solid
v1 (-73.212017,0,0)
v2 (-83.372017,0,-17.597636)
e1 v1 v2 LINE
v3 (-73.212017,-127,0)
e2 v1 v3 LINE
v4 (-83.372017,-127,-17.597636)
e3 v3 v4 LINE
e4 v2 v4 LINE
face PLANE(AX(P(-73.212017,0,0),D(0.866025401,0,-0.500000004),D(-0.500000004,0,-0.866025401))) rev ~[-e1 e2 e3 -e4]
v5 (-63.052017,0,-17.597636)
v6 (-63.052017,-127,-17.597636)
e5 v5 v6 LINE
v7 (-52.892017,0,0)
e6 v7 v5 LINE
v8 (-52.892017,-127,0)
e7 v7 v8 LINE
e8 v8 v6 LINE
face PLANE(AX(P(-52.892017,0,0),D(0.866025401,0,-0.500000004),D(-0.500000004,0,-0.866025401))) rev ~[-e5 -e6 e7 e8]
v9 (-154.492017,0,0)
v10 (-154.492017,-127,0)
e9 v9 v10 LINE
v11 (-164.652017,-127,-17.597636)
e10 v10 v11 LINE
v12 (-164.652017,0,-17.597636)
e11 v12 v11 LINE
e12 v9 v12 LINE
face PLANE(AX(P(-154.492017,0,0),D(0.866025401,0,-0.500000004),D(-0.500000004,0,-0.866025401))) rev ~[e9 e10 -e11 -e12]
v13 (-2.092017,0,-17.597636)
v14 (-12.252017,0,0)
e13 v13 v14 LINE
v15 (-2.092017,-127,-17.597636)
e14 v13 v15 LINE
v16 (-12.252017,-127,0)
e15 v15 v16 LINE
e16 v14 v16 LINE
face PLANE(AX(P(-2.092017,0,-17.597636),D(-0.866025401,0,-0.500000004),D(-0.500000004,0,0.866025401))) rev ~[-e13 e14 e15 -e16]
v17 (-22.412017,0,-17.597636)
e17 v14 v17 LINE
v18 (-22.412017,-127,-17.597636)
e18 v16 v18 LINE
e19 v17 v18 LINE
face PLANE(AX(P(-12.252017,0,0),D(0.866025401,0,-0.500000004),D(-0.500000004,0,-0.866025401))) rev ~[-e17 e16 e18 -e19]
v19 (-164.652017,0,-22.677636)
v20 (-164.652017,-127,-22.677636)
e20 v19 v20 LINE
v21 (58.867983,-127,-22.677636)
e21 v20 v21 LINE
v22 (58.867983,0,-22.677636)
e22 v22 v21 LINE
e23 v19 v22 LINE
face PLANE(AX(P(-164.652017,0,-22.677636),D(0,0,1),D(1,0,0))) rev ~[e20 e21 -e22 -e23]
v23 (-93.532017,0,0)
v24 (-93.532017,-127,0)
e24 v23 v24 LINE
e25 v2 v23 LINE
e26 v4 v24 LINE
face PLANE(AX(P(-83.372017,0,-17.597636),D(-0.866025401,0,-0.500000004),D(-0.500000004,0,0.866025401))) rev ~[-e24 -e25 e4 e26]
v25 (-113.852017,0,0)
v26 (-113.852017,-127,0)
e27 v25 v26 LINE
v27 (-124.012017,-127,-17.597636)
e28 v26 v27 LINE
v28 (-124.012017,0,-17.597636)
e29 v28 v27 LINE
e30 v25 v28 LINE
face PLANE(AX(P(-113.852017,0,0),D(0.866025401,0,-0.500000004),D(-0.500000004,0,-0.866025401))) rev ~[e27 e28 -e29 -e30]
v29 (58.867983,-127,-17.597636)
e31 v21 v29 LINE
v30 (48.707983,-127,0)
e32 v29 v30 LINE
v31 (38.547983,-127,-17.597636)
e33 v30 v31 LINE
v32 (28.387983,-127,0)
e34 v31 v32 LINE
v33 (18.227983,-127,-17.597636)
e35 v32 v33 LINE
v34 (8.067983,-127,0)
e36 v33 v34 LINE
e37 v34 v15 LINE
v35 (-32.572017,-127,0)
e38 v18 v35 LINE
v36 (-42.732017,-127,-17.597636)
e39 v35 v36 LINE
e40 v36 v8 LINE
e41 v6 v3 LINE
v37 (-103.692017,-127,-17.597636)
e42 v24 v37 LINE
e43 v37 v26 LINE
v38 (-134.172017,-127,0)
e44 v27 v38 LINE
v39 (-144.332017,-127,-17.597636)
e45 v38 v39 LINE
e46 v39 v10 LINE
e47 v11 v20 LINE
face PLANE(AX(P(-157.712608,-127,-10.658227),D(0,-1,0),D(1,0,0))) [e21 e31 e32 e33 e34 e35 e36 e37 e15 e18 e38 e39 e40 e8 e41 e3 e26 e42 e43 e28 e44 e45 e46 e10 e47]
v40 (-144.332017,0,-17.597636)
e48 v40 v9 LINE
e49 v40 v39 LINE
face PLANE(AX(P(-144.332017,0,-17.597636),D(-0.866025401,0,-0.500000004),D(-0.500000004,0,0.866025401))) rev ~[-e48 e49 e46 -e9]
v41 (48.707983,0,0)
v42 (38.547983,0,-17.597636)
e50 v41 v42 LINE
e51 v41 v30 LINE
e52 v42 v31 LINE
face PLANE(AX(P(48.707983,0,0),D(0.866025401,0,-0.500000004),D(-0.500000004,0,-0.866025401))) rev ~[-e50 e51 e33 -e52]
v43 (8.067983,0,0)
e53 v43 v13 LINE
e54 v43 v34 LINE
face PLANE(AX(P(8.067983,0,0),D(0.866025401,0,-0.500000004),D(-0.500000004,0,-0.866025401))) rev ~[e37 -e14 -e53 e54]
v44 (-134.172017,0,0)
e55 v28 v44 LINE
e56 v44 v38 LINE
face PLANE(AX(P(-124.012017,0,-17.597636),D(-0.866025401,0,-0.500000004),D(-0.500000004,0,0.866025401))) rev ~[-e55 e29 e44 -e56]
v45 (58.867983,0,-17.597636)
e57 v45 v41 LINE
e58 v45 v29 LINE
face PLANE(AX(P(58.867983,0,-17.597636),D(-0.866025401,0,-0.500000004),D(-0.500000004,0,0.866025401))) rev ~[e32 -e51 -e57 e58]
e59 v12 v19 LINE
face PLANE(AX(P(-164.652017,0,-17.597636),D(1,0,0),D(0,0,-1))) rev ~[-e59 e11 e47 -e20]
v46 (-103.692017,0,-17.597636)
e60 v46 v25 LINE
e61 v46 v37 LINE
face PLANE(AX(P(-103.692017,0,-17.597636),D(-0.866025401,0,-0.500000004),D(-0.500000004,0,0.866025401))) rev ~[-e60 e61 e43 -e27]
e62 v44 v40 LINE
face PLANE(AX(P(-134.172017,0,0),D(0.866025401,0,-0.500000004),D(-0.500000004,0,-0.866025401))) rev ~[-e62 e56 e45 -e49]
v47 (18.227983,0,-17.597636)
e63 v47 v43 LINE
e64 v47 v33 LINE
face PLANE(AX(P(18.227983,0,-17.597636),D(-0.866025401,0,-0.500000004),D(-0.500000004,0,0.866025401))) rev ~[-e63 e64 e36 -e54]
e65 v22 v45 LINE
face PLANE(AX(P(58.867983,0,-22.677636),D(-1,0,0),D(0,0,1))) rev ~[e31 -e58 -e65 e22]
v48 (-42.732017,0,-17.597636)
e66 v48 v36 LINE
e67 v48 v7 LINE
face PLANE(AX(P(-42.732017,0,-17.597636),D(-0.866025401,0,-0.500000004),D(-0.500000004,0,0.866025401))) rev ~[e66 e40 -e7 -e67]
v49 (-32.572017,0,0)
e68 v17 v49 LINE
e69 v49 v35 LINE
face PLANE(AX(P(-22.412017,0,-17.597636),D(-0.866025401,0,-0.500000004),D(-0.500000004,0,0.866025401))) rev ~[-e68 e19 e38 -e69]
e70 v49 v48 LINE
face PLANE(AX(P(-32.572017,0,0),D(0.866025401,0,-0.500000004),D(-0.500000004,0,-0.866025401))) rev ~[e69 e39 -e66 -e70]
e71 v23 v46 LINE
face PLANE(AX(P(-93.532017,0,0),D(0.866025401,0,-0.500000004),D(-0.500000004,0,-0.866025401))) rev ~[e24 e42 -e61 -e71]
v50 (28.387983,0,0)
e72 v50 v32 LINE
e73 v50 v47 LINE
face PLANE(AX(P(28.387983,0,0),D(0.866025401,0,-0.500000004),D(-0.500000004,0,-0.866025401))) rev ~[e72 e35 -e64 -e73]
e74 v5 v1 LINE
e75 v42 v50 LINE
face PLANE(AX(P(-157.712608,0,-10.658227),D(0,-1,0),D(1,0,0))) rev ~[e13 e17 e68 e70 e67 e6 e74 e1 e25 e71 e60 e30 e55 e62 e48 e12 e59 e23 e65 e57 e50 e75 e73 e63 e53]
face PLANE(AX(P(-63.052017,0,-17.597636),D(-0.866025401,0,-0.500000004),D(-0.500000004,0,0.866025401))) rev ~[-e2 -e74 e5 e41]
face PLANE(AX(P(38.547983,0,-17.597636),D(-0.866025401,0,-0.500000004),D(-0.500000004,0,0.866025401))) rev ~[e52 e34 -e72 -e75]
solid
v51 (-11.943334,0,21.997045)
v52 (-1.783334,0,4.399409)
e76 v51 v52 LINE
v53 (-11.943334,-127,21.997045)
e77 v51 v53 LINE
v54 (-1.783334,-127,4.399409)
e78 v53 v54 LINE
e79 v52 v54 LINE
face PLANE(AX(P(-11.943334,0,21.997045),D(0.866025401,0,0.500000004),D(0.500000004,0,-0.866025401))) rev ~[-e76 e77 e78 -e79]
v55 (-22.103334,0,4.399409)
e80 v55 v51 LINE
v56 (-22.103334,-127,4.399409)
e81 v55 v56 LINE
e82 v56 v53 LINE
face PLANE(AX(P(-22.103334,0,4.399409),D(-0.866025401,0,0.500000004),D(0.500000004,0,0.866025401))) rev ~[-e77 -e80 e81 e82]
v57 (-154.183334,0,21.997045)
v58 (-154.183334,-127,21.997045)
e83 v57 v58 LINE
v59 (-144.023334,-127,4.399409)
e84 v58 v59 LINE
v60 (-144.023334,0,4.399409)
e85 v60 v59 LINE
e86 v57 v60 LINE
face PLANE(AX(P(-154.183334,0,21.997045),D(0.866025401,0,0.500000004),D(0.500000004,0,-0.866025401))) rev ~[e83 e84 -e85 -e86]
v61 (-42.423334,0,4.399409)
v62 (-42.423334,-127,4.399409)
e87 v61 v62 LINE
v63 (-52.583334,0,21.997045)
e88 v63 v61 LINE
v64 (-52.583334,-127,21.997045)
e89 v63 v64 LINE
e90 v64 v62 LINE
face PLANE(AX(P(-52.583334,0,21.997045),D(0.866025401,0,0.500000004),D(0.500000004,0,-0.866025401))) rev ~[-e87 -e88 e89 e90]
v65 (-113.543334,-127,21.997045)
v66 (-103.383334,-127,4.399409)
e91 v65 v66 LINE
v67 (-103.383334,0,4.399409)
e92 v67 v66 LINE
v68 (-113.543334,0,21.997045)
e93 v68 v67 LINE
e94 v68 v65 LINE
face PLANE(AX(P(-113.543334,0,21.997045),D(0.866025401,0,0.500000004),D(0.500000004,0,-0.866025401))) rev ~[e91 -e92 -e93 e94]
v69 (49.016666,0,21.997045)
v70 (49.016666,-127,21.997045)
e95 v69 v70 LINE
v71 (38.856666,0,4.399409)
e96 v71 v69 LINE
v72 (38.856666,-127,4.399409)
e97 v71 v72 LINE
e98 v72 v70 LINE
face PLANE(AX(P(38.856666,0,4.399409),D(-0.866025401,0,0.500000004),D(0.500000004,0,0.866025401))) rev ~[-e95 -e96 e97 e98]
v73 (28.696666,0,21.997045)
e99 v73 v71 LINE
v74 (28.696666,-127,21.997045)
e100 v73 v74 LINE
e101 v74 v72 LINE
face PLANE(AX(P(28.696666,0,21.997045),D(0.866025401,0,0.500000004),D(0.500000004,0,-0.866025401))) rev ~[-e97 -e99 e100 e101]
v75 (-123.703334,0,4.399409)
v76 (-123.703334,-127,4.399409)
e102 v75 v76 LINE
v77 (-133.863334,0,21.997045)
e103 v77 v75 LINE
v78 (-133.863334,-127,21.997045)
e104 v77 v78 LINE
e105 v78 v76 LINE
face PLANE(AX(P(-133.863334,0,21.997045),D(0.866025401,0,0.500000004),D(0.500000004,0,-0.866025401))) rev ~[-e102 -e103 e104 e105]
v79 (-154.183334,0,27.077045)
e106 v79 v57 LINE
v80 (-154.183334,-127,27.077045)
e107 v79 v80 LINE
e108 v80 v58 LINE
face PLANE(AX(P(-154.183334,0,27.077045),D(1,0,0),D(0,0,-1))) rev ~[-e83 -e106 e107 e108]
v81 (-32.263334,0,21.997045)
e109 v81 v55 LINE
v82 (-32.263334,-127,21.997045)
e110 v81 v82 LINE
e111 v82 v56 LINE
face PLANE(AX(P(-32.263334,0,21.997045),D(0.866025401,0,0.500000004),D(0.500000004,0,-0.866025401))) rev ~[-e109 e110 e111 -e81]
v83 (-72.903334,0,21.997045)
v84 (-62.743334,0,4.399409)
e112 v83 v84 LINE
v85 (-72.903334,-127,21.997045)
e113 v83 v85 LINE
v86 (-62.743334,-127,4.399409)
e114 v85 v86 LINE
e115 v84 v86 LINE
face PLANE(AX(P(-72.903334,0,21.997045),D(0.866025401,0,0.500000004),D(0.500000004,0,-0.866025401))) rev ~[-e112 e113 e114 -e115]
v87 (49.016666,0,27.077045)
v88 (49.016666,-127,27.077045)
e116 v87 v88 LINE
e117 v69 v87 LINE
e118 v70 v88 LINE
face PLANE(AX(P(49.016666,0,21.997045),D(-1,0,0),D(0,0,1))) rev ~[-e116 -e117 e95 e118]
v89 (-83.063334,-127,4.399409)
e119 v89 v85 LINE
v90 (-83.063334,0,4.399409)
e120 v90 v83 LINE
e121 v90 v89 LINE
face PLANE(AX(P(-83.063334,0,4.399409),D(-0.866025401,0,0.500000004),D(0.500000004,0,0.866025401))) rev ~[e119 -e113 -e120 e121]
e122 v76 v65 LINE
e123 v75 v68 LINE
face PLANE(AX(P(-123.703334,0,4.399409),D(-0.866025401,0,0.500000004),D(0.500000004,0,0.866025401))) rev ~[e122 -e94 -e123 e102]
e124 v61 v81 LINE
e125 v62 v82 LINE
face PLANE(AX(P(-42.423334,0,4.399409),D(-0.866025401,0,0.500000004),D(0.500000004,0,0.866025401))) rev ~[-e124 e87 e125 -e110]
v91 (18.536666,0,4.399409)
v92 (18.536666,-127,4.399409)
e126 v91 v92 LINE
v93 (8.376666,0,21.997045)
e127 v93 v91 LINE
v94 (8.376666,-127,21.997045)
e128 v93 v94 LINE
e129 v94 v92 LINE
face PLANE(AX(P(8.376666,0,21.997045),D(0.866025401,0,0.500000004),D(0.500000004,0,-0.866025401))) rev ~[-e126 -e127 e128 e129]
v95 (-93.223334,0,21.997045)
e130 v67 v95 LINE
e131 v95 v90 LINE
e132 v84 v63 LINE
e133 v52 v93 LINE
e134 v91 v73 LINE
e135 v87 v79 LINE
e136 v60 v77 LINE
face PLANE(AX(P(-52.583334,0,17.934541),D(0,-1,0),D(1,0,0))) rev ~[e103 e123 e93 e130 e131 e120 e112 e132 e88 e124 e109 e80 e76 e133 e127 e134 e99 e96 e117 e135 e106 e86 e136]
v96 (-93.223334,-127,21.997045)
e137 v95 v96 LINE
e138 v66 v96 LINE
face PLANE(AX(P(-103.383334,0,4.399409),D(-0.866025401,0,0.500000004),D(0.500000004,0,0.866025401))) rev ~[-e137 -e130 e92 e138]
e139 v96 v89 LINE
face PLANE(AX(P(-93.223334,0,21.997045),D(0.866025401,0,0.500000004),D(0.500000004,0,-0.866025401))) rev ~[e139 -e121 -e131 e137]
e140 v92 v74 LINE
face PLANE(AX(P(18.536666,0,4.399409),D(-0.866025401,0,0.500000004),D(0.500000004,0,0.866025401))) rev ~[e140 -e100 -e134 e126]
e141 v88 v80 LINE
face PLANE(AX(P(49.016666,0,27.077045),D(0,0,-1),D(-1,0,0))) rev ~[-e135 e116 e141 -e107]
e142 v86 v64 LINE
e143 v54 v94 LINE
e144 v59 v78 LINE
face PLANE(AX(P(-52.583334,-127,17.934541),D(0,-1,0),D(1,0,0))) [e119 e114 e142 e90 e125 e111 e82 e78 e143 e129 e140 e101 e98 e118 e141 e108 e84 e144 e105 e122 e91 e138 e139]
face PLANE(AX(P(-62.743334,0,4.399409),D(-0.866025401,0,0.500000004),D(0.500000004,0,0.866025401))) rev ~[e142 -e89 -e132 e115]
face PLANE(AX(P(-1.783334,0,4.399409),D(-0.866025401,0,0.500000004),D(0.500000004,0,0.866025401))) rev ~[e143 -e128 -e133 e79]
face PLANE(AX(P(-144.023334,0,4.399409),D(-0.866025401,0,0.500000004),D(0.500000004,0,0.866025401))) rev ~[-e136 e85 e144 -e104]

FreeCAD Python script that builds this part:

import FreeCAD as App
import Part
import Sketcher
from FreeCAD import Vector
Q = App.Units.Quantity


def add_polygon(sketch, points):
    """Adds a closed chain of lines whose ends are joined by coincident constraints."""
    first, n = sketch.GeometryCount, len(points)
    for a, b in zip(points, points[1:] + points[:1]):
        sketch.addGeometry(Part.LineSegment(App.Vector(*a, 0), App.Vector(*b, 0)), False)
    for i in range(n):
        sketch.addConstraint(Sketcher.Constraint("Coincident", first + i, 2, first + (i + 1) % n, 1))

doc = App.newDocument("Part")
params = doc.addObject("Spreadsheet::Sheet", "Params")
for row, (alias, value) in enumerate([
    ("sketch1_width", "8 in"),
    ("sketch1_height", "0.2 in"),
    ("pad1_length", "5 in"),
], start=1):
    params.set(f"A{row}", alias)
    params.set(f"B{row}", "=" + value)
    params.setAlias(f"B{row}", alias)

body = doc.addObject("PartDesign::Body", "Body")
body.AllowCompound = True

sketch1 = body.newObject("Sketcher::SketchObject", "Sketch")
sketch1.AttachmentSupport = (doc.getObject("XZ_Plane"), [""])
sketch1.MapMode = "FlatFace"
add_polygon(sketch1, [(49, 27), (-154, 27), (-154, 22), (-144, 4), (-134, 22), (-124, 4), (-114, 22), (-103, 4), (-93, 22), (-83, 4), (-73, 22), (-63, 4), (-53, 22), (-42, 4), (-32, 22), (-22, 4), (-12, 22), (-2, 4), (8, 22), (19, 4), (29, 22), (39, 4), (49, 22)])
add_polygon(sketch1, [(-154, 0), (-165, -18), (-165, -23), (59, -23), (59, -18), (49, 0), (39, -18), (28, 0), (18, -18), (8, 0), (-2, -18), (-12, 0), (-22, -18), (-33, 0), (-43, -18), (-53, 0), (-63, -18), (-73, 0), (-83, -18), (-94, 0), (-104, -18), (-114, 0), (-124, -18), (-134, 0), (-144, -18)])
sketch1.addConstraint([
    Sketcher.Constraint("Horizontal", 0),
    Sketcher.Constraint("Vertical", 1),
    Sketcher.Constraint("Vertical", 22),
    Sketcher.Constraint("Vertical", 24),
    Sketcher.Constraint("Horizontal", 25),
    Sketcher.Constraint("Vertical", 26),
    Sketcher.Constraint("PointOnObject", 27, 2, -1),
    Sketcher.Constraint("PointOnObject", 29, 2, -1),
    Sketcher.Constraint("PointOnObject", 31, 2, -1),
    Sketcher.Constraint("PointOnObject", 33, 2, -1),
    Sketcher.Constraint("PointOnObject", 35, 2, -1),
    Sketcher.Constraint("PointOnObject", 37, 2, -1),
    Sketcher.Constraint("PointOnObject", 39, 2, -1),
    Sketcher.Constraint("PointOnObject", 41, 2, -1),
    Sketcher.Constraint("PointOnObject", 43, 2, -1),
    Sketcher.Constraint("PointOnObject", 45, 2, -1),
    Sketcher.Constraint("PointOnObject", 47, 2, -1),
    Sketcher.Constraint("Parallel", 2, 4),
    Sketcher.Constraint("Parallel", 3, 5),
    Sketcher.Constraint("Parallel", 4, 6),
    Sketcher.Constraint("Parallel", 5, 7),
    Sketcher.Constraint("Parallel", 6, 8),
    Sketcher.Constraint("Parallel", 7, 9),
    Sketcher.Constraint("Parallel", 8, 10),
    Sketcher.Constraint("Parallel", 9, 11),
    Sketcher.Constraint("Parallel", 10, 12),
    Sketcher.Constraint("Parallel", 11, 13),
    Sketcher.Constraint("Parallel", 12, 14),
    Sketcher.Constraint("Parallel", 13, 15),
    Sketcher.Constraint("Parallel", 14, 16),
    Sketcher.Constraint("Parallel", 15, 17),
    Sketcher.Constraint("Parallel", 16, 18),
    Sketcher.Constraint("Parallel", 17, 19),
    Sketcher.Constraint("Parallel", 18, 20),
    Sketcher.Constraint("Parallel", 19, 21),
    Sketcher.Constraint("Parallel", 21, 23),
    Sketcher.Constraint("Parallel", 20, 27),
    Sketcher.Constraint("Parallel", 23, 28),
    Sketcher.Constraint("Parallel", 27, 29),
    Sketcher.Constraint("Parallel", 28, 30),
    Sketcher.Constraint("Parallel", 29, 31),
    Sketcher.Constraint("Parallel", 30, 32),
    Sketcher.Constraint("Parallel", 31, 33),
    Sketcher.Constraint("Parallel", 32, 34),
    Sketcher.Constraint("Parallel", 33, 35),
    Sketcher.Constraint("Parallel", 34, 36),
    Sketcher.Constraint("Parallel", 35, 37),
    Sketcher.Constraint("Parallel", 36, 38),
    Sketcher.Constraint("Parallel", 37, 39),
    Sketcher.Constraint("Parallel", 38, 40),
    Sketcher.Constraint("Parallel", 39, 41),
    Sketcher.Constraint("Parallel", 40, 42),
    Sketcher.Constraint("Parallel", 41, 43),
    Sketcher.Constraint("Parallel", 42, 44),
    Sketcher.Constraint("Parallel", 43, 45),
    Sketcher.Constraint("Parallel", 44, 46),
    Sketcher.Constraint("Parallel", 45, 47),
    Sketcher.Constraint("Horizontal", 1, 2, 3, 2),
    Sketcher.Constraint("Horizontal", 2, 2, 4, 2),
    Sketcher.Constraint("Horizontal", 3, 2, 5, 2),
    Sketcher.Constraint("Horizontal", 4, 2, 6, 2),
    Sketcher.Constraint("Horizontal", 5, 2, 7, 2),
    Sketcher.Constraint("Horizontal", 6, 2, 8, 2),
    Sketcher.Constraint("Horizontal", 7, 2, 9, 2),
    Sketcher.Constraint("Horizontal", 8, 2, 10, 2),
    Sketcher.Constraint("Horizontal", 9, 2, 11, 2),
    Sketcher.Constraint("Horizontal", 10, 2, 12, 2),
    Sketcher.Constraint("Horizontal", 11, 2, 13, 2),
    Sketcher.Constraint("Horizontal", 12, 2, 14, 2),
    Sketcher.Constraint("Horizontal", 13, 2, 15, 2),
    Sketcher.Constraint("Horizontal", 14, 2, 16, 2),
    Sketcher.Constraint("Horizontal", 15, 2, 17, 2),
    Sketcher.Constraint("Horizontal", 16, 2, 18, 2),
    Sketcher.Constraint("Horizontal", 17, 2, 19, 2),
    Sketcher.Constraint("Horizontal", 18, 2, 20, 2),
    Sketcher.Constraint("Horizontal", 19, 2, 21, 2),
    Sketcher.Constraint("Horizontal", 23, 2, 26, 2),
    Sketcher.Constraint("Horizontal", 26, 2, 28, 2),
    Sketcher.Constraint("Horizontal", 28, 2, 30, 2),
    Sketcher.Constraint("Horizontal", 30, 2, 32, 2),
    Sketcher.Constraint("Horizontal", 32, 2, 34, 2),
    Sketcher.Constraint("Horizontal", 34, 2, 36, 2),
    Sketcher.Constraint("Horizontal", 36, 2, 38, 2),
    Sketcher.Constraint("Horizontal", 38, 2, 40, 2),
    Sketcher.Constraint("Horizontal", 40, 2, 42, 2),
    Sketcher.Constraint("Horizontal", 42, 2, 44, 2),
    Sketcher.Constraint("Horizontal", 44, 2, 46, 2),
    Sketcher.Constraint("Equal", 22, 24),
    Sketcher.Constraint("Equal", 2, 3),
    Sketcher.Constraint("Equal", 21, 23),
    Sketcher.Constraint("DistanceX", 0, 2, 0, 1, Q("8 in")),
    Sketcher.Constraint("DistanceY", 1, 2, 1, 1, Q("0.2 in")),
    Sketcher.Constraint("Angle", 2, Q("-60 deg")),
    Sketcher.Constraint("DistanceY", -1, 1, 2, 2, 4.399409),
    Sketcher.Constraint("DistanceX", 0, 2, -1, 1, 154.183334),
    Sketcher.Constraint("DistanceX", 23, 2, -1, 1, 164.652017),
])
sketch1.setExpression("Constraints[138]", "Params.sketch1_width")
sketch1.setExpression("Constraints[139]", "Params.sketch1_height")
pad1 = body.newObject("PartDesign::Pad", "Pad")
pad1.Profile = sketch1
pad1.setExpression("Length", "Params.pad1_length")

doc.recompute()
